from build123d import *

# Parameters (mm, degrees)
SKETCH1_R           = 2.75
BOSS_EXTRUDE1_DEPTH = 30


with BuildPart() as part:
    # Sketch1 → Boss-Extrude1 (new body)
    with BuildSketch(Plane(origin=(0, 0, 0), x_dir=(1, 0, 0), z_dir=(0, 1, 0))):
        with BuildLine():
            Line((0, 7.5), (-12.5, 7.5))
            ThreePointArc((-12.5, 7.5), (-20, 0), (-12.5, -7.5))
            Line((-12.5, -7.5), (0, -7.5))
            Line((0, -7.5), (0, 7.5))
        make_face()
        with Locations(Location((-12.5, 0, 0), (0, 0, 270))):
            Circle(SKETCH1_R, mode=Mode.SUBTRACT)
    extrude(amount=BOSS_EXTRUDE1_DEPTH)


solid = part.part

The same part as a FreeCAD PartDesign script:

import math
import FreeCAD as App
import Part
import Sketcher

V = App.Vector

doc = App.newDocument("Part")
body = doc.addObject("PartDesign::Body", "Body")

sketch1 = body.newObject("Sketcher::SketchObject", "Sketch")
sketch1.AttachmentSupport = (doc.getObject("XZ_Plane"), [""])
sketch1.MapMode = "FlatFace"
sketch1.addGeometry([
    Part.LineSegment(V(0, -7.5, 0), V(-12.5, -7.5, 0)),
    Part.ArcOfCircle(Part.Circle(V(-12.5, 0, 0), V(0, 0, 1), 7.5), math.radians(90), math.radians(270)),
    Part.LineSegment(V(-12.5, 7.5, 0), V(0, 7.5, 0)),
    Part.LineSegment(V(0, 7.5, 0), V(0, -7.5, 0)),
    Part.Circle(V(-12.5, 0, 0), V(0, 0, 1), 2.8),
], False)
sketch1.addConstraint([
    Sketcher.Constraint("Tangent", 0, 2, 1, 2),
    Sketcher.Constraint("Tangent", 1, 1, 2, 1),
    Sketcher.Constraint("Coincident", 2, 2, 3, 1),
    Sketcher.Constraint("Coincident", 3, 2, 0, 1),
    Sketcher.Constraint("Horizontal", 0),
    Sketcher.Constraint("Horizontal", 2),
    Sketcher.Constraint("Vertical", 3),
    Sketcher.Constraint("Coincident", 4, 3, 1, 3),
    Sketcher.Constraint("Symmetric", 2, 2, 3, 2, -1, 1),
    Sketcher.Constraint("Diameter", 4, 5.5),
    Sketcher.Constraint("Radius", 1, 7.5),
    Sketcher.Constraint("DistanceX", 0, 2, 0, 1, 12.5),
])
pad1 = body.newObject("PartDesign::Pad", "Pad")
pad1.Profile = sketch1
pad1.Length = 30
pad1.Reversed = True

doc.recompute()
